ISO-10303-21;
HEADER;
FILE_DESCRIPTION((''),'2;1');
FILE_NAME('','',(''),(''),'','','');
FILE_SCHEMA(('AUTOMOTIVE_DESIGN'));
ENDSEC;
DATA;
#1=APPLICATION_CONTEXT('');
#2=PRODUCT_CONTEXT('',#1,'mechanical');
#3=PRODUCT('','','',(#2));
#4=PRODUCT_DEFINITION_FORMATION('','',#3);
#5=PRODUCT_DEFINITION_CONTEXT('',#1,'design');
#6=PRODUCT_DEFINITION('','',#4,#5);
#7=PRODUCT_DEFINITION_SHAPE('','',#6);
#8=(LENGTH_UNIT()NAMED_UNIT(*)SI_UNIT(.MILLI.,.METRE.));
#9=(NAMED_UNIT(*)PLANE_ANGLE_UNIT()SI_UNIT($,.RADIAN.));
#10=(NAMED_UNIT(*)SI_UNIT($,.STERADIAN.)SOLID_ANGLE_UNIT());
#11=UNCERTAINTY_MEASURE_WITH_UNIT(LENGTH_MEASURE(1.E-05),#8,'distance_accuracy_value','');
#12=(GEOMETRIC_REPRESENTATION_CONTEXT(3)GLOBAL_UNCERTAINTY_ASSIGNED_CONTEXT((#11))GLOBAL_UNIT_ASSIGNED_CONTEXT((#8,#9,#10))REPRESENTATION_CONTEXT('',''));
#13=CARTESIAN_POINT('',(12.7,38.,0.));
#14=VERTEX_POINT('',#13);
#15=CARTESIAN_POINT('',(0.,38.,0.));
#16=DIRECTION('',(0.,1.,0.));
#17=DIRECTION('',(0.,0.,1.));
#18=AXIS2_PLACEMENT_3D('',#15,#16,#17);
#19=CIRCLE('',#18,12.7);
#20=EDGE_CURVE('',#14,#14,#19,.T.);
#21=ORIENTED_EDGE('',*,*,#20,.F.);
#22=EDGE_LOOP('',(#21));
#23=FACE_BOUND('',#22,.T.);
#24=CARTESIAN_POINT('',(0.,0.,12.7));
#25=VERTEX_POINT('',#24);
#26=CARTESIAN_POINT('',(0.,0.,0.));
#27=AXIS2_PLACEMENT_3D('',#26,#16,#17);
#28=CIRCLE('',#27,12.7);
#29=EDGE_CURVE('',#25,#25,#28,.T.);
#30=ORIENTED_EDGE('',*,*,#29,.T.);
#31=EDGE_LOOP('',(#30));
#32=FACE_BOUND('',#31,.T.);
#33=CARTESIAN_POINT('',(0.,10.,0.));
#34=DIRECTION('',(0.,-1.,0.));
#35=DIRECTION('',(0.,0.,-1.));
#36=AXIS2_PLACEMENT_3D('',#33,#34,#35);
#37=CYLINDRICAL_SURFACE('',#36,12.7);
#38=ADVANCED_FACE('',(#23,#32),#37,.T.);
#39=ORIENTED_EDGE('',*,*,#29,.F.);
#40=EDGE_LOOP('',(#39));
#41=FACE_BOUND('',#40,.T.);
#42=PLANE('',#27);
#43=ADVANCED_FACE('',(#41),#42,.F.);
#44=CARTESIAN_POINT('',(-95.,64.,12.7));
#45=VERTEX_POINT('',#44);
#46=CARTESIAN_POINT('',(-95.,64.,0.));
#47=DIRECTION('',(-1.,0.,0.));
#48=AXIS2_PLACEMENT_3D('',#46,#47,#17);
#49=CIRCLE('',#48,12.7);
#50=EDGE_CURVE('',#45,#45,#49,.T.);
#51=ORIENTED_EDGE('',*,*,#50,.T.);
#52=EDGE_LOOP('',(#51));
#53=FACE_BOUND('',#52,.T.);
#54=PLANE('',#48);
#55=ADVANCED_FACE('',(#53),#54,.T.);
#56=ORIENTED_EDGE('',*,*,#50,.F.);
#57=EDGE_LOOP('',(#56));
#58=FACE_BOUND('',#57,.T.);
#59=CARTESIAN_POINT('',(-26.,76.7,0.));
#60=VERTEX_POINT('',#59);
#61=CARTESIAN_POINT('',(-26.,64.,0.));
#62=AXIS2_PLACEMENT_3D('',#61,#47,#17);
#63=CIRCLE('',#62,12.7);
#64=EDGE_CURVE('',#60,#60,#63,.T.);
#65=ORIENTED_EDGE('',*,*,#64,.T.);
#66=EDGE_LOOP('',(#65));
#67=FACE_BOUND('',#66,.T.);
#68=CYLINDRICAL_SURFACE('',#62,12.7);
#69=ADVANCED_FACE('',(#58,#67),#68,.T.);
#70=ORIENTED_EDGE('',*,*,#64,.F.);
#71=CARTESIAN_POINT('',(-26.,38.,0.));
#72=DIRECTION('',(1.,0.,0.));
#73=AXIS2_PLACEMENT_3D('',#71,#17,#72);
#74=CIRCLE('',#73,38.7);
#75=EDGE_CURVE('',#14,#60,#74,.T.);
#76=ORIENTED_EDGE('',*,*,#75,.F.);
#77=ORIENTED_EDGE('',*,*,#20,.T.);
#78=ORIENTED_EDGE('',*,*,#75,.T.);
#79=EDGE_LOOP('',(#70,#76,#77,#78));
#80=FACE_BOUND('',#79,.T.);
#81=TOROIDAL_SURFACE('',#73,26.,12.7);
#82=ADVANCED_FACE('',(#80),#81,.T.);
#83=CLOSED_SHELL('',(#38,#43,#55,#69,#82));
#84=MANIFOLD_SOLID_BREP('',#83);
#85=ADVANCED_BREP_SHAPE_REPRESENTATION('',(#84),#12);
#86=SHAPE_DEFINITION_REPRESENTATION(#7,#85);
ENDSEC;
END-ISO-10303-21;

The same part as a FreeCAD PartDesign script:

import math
import FreeCAD as App
import Part
import Sketcher
from FreeCAD import Vector
Q = App.Units.Quantity

doc = App.newDocument("Part")
body = doc.addObject("PartDesign::Body", "Body")

sketch1 = body.newObject("Sketcher::SketchObject", "Sketch")
sketch1.AttachmentSupport = (doc.getObject("XZ_Plane"), [""])
sketch1.MapMode = "FlatFace"
sketch1.addGeometry(Part.Circle(Vector(0, 0, 0), Vector(0, 0, 1), 13), False)
sketch1.addConstraint(Sketcher.Constraint("Coincident", 0, 3, -1, 1))
sketch1.addConstraint(Sketcher.Constraint("Diameter", 0, Q("25.4 mm")))
pad1 = body.newObject("PartDesign::Pad", "Pad")
pad1.Profile = sketch1
pad1.Length = 10
pad1.Reversed = True

sketch2 = body.newObject("Sketcher::SketchObject", "Sketch001")
sketch2.AttachmentSupport = (doc.getObject("XZ_Plane"), [""])
sketch2.MapMode = "FlatFace"
sketch2.AttachmentOffset = App.Placement(Vector(0, 0, -10), App.Rotation())
sketch2.addGeometry(Part.Circle(Vector(0, 0, 0), Vector(0, 0, 1), 13), False)
sketch2.addConstraint(Sketcher.Constraint("Coincident", 0, 3, -1, 1))
sketch2.addConstraint(Sketcher.Constraint("Diameter", 0, Q("25.4 mm")))

sketch3 = body.newObject("Sketcher::SketchObject", "Sketch002")
sketch3.AttachmentSupport = (doc.getObject("XY_Plane"), [""])
sketch3.MapMode = "FlatFace"
sketch3.addGeometry(Part.LineSegment(Vector(0, 10, 0), Vector(0, 38, 0)), False)
sketch3.addGeometry(Part.ArcOfCircle(Part.Circle(Vector(-26, 38, 0), Vector(0, 0, 1), 26), math.radians(0), math.radians(90)), False)
sketch3.addGeometry(Part.LineSegment(Vector(-26, 64, 0), Vector(-95, 64, 0)), False)
sketch3.addConstraint(Sketcher.Constraint("Tangent", 0, 2, 1, 1))
sketch3.addConstraint(Sketcher.Constraint("Tangent", 1, 2, 2, 1))
sketch3.addConstraint(Sketcher.Constraint("Vertical", 0))
sketch3.addConstraint(Sketcher.Constraint("Horizontal", 2))
sketch3.addConstraint(Sketcher.Constraint("PointOnObject", 0, 1, -2))
sketch3.addConstraint(Sketcher.Constraint("Radius", 1, Q("26 mm")))
sketch3.addConstraint(Sketcher.Constraint("DistanceX", 2, 2, 2, 1, Q("69 mm")))
sketch3.addConstraint(Sketcher.Constraint("DistanceY", 0, 1, 0, 2, Q("28 mm")))
sketch3.addConstraint(Sketcher.Constraint("DistanceY", -1, 1, 1, 3, Q("38 mm")))
doc.recompute()

additivepipe = body.newObject("PartDesign::AdditivePipe", "AdditivePipe")
additivepipe.Profile = sketch2
additivepipe.Spine = (sketch3, ["Edge1", "Edge2", "Edge3"])

doc.recompute()
